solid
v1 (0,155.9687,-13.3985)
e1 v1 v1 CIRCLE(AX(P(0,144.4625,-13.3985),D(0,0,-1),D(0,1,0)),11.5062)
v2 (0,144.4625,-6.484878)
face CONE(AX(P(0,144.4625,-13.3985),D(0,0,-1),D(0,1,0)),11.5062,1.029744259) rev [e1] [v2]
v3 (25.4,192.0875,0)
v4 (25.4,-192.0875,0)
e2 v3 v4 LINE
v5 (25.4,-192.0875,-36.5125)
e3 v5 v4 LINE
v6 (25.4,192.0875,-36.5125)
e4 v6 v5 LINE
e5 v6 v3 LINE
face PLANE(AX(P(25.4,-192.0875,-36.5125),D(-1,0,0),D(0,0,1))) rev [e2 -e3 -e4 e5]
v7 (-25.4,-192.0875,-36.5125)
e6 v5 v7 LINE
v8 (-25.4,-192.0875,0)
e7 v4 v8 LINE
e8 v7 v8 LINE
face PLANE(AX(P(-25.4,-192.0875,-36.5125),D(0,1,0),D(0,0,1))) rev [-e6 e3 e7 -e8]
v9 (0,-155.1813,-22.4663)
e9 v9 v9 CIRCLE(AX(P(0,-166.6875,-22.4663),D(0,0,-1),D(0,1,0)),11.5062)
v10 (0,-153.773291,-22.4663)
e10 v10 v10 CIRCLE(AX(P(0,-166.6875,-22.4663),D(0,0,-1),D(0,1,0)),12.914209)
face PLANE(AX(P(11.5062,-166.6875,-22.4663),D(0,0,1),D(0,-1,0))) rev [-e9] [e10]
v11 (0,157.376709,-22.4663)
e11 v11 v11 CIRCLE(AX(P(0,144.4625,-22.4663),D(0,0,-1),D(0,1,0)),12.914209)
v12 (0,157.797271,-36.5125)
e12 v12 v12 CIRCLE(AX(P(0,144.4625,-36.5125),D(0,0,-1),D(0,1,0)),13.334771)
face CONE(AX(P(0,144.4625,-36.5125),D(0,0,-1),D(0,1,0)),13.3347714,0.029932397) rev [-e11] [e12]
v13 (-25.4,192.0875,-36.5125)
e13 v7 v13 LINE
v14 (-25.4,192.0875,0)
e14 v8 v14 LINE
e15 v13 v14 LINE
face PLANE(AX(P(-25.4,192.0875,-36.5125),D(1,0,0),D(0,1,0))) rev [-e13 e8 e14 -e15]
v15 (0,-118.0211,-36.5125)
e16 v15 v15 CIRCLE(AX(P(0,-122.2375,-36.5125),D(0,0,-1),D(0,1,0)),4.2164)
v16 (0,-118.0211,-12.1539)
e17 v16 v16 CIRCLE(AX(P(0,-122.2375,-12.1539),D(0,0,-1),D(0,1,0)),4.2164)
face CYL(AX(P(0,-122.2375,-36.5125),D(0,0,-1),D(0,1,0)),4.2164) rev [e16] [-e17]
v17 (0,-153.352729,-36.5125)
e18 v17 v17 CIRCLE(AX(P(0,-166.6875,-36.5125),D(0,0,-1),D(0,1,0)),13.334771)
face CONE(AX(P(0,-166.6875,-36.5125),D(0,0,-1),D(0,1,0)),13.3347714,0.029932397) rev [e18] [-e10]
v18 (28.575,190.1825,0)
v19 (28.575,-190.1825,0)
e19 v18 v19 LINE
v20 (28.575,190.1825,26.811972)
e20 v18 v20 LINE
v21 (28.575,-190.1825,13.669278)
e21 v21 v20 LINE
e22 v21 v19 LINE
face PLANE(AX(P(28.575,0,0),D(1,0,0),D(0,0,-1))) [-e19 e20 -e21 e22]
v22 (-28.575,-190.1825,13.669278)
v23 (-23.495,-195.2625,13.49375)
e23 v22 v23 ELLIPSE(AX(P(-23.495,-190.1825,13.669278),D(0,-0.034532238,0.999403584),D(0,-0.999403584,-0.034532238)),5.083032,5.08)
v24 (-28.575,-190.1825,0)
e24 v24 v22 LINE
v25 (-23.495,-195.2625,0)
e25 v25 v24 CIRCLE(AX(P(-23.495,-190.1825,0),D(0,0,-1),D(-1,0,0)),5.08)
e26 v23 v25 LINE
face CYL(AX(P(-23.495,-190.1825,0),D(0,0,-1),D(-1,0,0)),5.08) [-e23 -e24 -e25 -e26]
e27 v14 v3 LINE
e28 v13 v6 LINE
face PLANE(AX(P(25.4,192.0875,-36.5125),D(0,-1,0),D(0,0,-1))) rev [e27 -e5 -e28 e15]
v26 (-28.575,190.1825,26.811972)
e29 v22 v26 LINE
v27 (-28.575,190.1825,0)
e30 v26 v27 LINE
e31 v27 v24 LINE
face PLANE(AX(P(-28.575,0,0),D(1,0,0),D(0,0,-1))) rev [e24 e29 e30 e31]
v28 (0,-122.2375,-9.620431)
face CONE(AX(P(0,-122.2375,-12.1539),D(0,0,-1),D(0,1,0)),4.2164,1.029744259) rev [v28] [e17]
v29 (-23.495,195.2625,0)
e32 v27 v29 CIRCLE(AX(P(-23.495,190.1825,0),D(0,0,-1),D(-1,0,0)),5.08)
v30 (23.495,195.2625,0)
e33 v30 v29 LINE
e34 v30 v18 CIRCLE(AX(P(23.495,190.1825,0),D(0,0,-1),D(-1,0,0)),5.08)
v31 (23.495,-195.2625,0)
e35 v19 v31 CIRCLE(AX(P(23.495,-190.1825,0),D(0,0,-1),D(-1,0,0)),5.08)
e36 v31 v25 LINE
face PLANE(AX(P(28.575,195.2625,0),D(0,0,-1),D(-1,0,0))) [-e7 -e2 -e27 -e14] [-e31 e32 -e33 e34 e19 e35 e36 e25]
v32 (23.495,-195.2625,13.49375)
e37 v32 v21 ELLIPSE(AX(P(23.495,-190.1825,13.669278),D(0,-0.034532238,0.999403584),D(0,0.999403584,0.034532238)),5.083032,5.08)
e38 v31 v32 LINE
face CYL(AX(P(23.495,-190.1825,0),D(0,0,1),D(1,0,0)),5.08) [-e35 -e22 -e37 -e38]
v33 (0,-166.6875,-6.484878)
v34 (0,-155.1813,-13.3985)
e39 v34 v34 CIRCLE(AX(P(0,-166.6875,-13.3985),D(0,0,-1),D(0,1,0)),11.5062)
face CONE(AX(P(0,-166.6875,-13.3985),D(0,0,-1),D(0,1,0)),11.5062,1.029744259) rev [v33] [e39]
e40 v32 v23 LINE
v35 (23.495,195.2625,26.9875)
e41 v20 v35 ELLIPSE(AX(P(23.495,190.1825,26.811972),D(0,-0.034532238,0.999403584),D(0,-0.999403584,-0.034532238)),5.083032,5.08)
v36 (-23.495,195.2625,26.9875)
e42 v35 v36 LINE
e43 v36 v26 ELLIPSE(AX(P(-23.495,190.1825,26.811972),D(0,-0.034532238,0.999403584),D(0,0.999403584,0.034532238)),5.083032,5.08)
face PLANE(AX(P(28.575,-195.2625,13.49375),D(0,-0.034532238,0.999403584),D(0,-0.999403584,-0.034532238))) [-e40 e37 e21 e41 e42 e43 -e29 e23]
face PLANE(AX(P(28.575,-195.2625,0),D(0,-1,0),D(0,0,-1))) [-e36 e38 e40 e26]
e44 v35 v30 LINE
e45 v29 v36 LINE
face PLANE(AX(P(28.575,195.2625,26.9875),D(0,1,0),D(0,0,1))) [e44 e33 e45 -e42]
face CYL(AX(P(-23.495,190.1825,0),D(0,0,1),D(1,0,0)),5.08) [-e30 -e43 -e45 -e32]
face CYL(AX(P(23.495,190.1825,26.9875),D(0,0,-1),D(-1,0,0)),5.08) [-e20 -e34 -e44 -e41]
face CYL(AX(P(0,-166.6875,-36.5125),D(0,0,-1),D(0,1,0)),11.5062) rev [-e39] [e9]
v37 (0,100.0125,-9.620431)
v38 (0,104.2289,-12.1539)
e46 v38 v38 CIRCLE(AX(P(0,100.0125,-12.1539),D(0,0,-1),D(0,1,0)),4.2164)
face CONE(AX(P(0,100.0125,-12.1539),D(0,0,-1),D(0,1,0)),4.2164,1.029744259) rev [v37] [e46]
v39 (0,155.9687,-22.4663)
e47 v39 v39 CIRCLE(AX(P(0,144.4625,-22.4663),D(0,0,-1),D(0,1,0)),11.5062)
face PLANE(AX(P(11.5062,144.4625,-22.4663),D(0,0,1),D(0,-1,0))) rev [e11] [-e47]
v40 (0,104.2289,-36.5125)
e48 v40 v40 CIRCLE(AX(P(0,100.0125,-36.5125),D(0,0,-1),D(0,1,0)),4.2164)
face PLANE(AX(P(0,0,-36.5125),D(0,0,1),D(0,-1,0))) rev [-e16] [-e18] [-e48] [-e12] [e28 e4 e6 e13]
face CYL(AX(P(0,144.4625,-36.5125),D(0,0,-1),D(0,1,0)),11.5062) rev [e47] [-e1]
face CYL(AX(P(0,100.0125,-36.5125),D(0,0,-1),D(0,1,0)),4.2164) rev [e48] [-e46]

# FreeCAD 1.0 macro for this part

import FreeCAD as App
import Part
import Sketcher
from FreeCAD import Vector
Q = App.Units.Quantity


def edges_at(feature, points):
    """Names of the edges that pass closest to the given points."""
    edges = feature.Shape.Edges
    near = lambda p: min(range(len(edges)), key=lambda i: edges[i].distToShape(Part.Vertex(*p))[0])
    return sorted({f"Edge{near(p) + 1}" for p in points})


def add_polygon(sketch, points):
    """Adds a closed chain of lines whose ends are joined by coincident constraints."""
    first, n = sketch.GeometryCount, len(points)
    for a, b in zip(points, points[1:] + points[:1]):
        sketch.addGeometry(Part.LineSegment(App.Vector(*a, 0), App.Vector(*b, 0)), False)
    for i in range(n):
        sketch.addConstraint(Sketcher.Constraint("Coincident", first + i, 2, first + (i + 1) % n, 1))

doc = App.newDocument("Part")
params = doc.addObject("Spreadsheet::Sheet", "Params")
for row, (alias, value) in enumerate([
    ("sketch1_width", "15.375 in"),
    ("sketch1_height", "1.0625 in"),
    ("sketch1_height2", "0.53125 in"),
    ("pad1_length", "2.25 in"),
    ("sketch2_width", "2 in"),
    ("sketch2_height", "15.125 in"),
    ("pad2_length", "1.4375 in"),
    ("sketch3_diameter", "0.332 in"),
    ("hole_diameter", "0.332 in"),
    ("hole_depth", "0.959 in"),
    ("fillet_radius", "0.2 in"),
    ("sketch4_height", "0.357 in"),
    ("groove_angle", "360 deg"),
    ("linearpattern_pitch", "12.25 in"),
], start=1):
    params.set(f"A{row}", alias)
    params.set(f"B{row}", "=" + value)
    params.setAlias(f"B{row}", alias)

body = doc.addObject("PartDesign::Body", "Body")

sketch1 = body.newObject("Sketcher::SketchObject", "Sketch")
sketch1.AttachmentSupport = (doc.getObject("YZ_Plane"), [""])
sketch1.MapMode = "FlatFace"
sketch1.AttachmentOffset = App.Placement(Vector(0, 0, -1.125 * 25.4), App.Rotation())
add_polygon(sketch1, [(-195, 13), (195, 27), (195, 0), (-195, 0)])
sketch1.addConstraint(Sketcher.Constraint("Vertical", 1))
sketch1.addConstraint(Sketcher.Constraint("Horizontal", 2))
sketch1.addConstraint(Sketcher.Constraint("Vertical", 3))
sketch1.addConstraint(Sketcher.Constraint("Symmetric", 1, 2, 2, 2, -1, 1))
sketch1.addConstraint(Sketcher.Constraint("DistanceX", 2, 2, 2, 1, Q("15.375 in")))
sketch1.addConstraint(Sketcher.Constraint("DistanceY", 1, 2, 1, 1, Q("1.0625 in")))
sketch1.addConstraint(Sketcher.Constraint("DistanceY", 3, 1, 3, 2, Q("0.53125 in")))
sketch1.setExpression("Constraints[8]", "Params.sketch1_width")
sketch1.setExpression("Constraints[9]", "Params.sketch1_height")
sketch1.setExpression("Constraints[10]", "Params.sketch1_height2")
pad1 = body.newObject("PartDesign::Pad", "Pad")
pad1.Profile = sketch1
pad1.setExpression("Length", "Params.pad1_length")

sketch2 = body.newObject("Sketcher::SketchObject", "Sketch001")
sketch2.AttachmentSupport = (doc.getObject("XY_Plane"), [""])
sketch2.MapMode = "FlatFace"
add_polygon(sketch2, [(25, 192), (25, -192), (-25, -192), (-25, 192)])
sketch2.addConstraint(Sketcher.Constraint("Vertical", 0))
sketch2.addConstraint(Sketcher.Constraint("Horizontal", 1))
sketch2.addConstraint(Sketcher.Constraint("Vertical", 2))
sketch2.addConstraint(Sketcher.Constraint("Horizontal", 3))
sketch2.addConstraint(Sketcher.Constraint("Symmetric", 0, 2, 2, 2, -1, 1))
sketch2.addConstraint(Sketcher.Constraint("DistanceX", 1, 2, 1, 1, Q("2 in")))
sketch2.addConstraint(Sketcher.Constraint("DistanceY", 0, 2, 0, 1, Q("15.125 in")))
sketch2.setExpression("Constraints[9]", "Params.sketch2_width")
sketch2.setExpression("Constraints[10]", "Params.sketch2_height")
pad2 = body.newObject("PartDesign::Pad", "Pad001")
pad2.Profile = sketch2
pad2.setExpression("Length", "Params.pad2_length")
pad2.Reversed = True

sketch3 = body.newObject("Sketcher::SketchObject", "Sketch002")
sketch3.AttachmentSupport = (doc.getObject("XY_Plane"), [""])
sketch3.MapMode = "FlatFace"
sketch3.AttachmentOffset = App.Placement(Vector(0, 0, -1.4375 * 25.4), App.Rotation())
sketch3.addGeometry(Part.Circle(Vector(0, 100, 0), Vector(0, 0, 1), 4.2), False)
sketch3.addGeometry(Part.Circle(Vector(0, -122.2, 0), Vector(0, 0, 1), 4.2), False)
sketch3.addConstraint(Sketcher.Constraint("Equal", 0, 1))
sketch3.addConstraint(Sketcher.Constraint("PointOnObject", 0, 3, -2))
sketch3.addConstraint(Sketcher.Constraint("PointOnObject", 1, 3, -2))
sketch3.addConstraint(Sketcher.Constraint("Diameter", 0, Q("0.332 in")))
sketch3.addConstraint(Sketcher.Constraint("DistanceY", 1, 3, 0, 3, Q("8.75 in")))
sketch3.addConstraint(Sketcher.Constraint("DistanceY", -1, 1, 0, 3, Q("3.9375 in")))
sketch3.setExpression("Constraints[3]", "Params.sketch3_diameter")
doc.recompute()
hole = body.newObject("PartDesign::Hole", "Hole")
hole.Profile = sketch3
hole.ThreadType = "None"
hole.setExpression("Diameter", "Params.hole_diameter")
hole.DepthType = "Dimension"
hole.setExpression("Depth", "Params.hole_depth")
hole.DrillPoint = "Angled"
hole.DrillPointAngle = 118
hole.Reversed = True
doc.recompute()

fillet = body.newObject("PartDesign::Fillet", "Fillet")
fillet.Base = (hole, edges_at(hole, [
    (28.575, 195.262, 13.494),
    (28.575, -195.262, 6.747),
    (-28.575, 195.262, 13.494),
    (-28.575, -195.262, 6.747),
]))
fillet.setExpression("Radius", "Params.fillet_radius")

sketch4 = body.newObject("Sketcher::SketchObject", "Sketch003")
sketch4.AttachmentSupport = (doc.getObject("YZ_Plane"), [""])
sketch4.MapMode = "FlatFace"
add_polygon(sketch4, [(144.5, -6.5), (144.5, -36.5), (157.8, -36.5), (157.4, -22.5), (156, -22.5), (156, -13.4)])
sketch4.addGeometry(Part.LineSegment(Vector(144.5, -36.5, 0), Vector(144.5, -6.5, 0)), True)
sketch4.addConstraint(Sketcher.Constraint("Vertical", 0))
sketch4.addConstraint(Sketcher.Constraint("Horizontal", 1))
sketch4.addConstraint(Sketcher.Constraint("Horizontal", 3))
sketch4.addConstraint(Sketcher.Constraint("Vertical", 4))
sketch4.addConstraint(Sketcher.Constraint("Vertical", 6))
sketch4.addConstraint(Sketcher.Constraint("Coincident", 6, 1, 0, 2))
sketch4.addConstraint(Sketcher.Constraint("Equal", 0, 6))
sketch4.addConstraint(Sketcher.Constraint("Angle", 5, Q("149 deg")))
sketch4.addConstraint(Sketcher.Constraint("DistanceY", 4, 1, 4, 2, Q("0.357 in")))
sketch4.addConstraint(Sketcher.Constraint("DistanceY", 1, 2, 4, 2, Q("0.91 in")))
sketch4.addConstraint(Sketcher.Constraint("DistanceX", -1, 1, 0, 2, Q("5.6875 in")))
sketch4.addConstraint(Sketcher.Constraint("DistanceY", 0, 2, -1, 1, Q("1.4375 in")))
sketch4.addConstraint(Sketcher.Constraint("DistanceX", 0, 2, 3, 2, Q("0.453 in")))
sketch4.addConstraint(Sketcher.Constraint("DistanceX", 1, 1, 1, 2, 13.334771))
sketch4.addConstraint(Sketcher.Constraint("DistanceX", 3, 2, 3, 1, 1.408009))
sketch4.setExpression("Constraints[14]", "Params.sketch4_height")
groove = body.newObject("PartDesign::Groove", "Groove")
groove.Profile = sketch4
groove.ReferenceAxis = (sketch4, ["Axis0"])
groove.setExpression("Angle", "Params.groove_angle")
doc.recompute()

linearpattern = body.newObject("PartDesign::LinearPattern", "LinearPattern")
linearpattern.Originals = [groove]
linearpattern.Direction = (doc.getObject("Y_Axis"), [""])
linearpattern.Mode = "offset"
linearpattern.setExpression("Offset", "Params.linearpattern_pitch")
linearpattern.Occurrences = 2
linearpattern.Reversed = True
body.Tip = linearpattern

doc.recompute()
